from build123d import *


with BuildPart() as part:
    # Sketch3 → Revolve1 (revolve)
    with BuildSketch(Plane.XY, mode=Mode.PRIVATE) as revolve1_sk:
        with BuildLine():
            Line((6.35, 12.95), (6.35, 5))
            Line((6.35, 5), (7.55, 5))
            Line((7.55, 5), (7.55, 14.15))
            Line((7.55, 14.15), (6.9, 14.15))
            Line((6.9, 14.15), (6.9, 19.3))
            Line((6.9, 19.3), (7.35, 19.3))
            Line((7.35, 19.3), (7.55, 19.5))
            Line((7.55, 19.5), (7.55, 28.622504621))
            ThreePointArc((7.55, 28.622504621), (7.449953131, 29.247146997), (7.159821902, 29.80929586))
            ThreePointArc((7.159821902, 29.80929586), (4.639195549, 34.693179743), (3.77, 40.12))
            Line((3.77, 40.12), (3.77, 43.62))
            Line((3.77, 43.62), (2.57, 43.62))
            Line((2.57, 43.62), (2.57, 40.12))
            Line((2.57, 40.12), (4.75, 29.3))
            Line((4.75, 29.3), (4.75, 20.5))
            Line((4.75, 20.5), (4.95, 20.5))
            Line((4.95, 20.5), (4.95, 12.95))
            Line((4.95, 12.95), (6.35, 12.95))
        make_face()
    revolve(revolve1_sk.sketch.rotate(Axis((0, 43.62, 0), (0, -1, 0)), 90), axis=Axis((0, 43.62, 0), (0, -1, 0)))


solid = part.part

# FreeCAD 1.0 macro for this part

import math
import FreeCAD as App
import Part
import Sketcher
from FreeCAD import Vector
Q = App.Units.Quantity

doc = App.newDocument("Part")
body = doc.addObject("PartDesign::Body", "Body")

# Sketch on XY plane
sketch1 = body.newObject("Sketcher::SketchObject", "Sketch")
sketch1.AttachmentSupport = (doc.getObject("XY_Plane"), [""])
sketch1.MapMode = "FlatFace"
sketch1.addGeometry([
    Part.LineSegment(Vector(6.35, 12.95, 0), Vector(6.35, 5, 0)),  # 0
    Part.LineSegment(Vector(6.35, 5, 0), Vector(7.55, 5, 0)),  # 1
    Part.LineSegment(Vector(7.55, 5, 0), Vector(7.55, 14.15, 0)),  # 2
    Part.LineSegment(Vector(7.55, 14.15, 0), Vector(6.9, 14.15, 0)),  # 3
    Part.LineSegment(Vector(6.9, 14.15, 0), Vector(6.9, 19.3, 0)),  # 4
    Part.LineSegment(Vector(6.9, 19.3, 0), Vector(7.35, 19.3, 0)),  # 5
    Part.LineSegment(Vector(7.35, 19.3, 0), Vector(7.55, 19.5, 0)),  # 6
    Part.LineSegment(Vector(7.55, 19.5, 0), Vector(7.55, 28.62, 0)),  # 7
    Part.ArcOfCircle(Part.Circle(Vector(5.55, 28.62, 0), Vector(0, 0, 1), 2), math.radians(0), math.radians(36)),  # 8
    Part.ArcOfCircle(Part.Circle(Vector(21.15, 40.12, 0), Vector(0, 0, 1), 17.38), math.radians(-180), math.radians(-144)),  # 9
    Part.LineSegment(Vector(3.77, 40.12, 0), Vector(3.77, 43.62, 0)),  # 10
    Part.LineSegment(Vector(3.77, 43.62, 0), Vector(2.57, 43.62, 0)),  # 11
    Part.LineSegment(Vector(2.57, 43.62, 0), Vector(2.57, 40.12, 0)),  # 12
    Part.LineSegment(Vector(2.57, 40.12, 0), Vector(4.75, 29.3, 0)),  # 13
    Part.LineSegment(Vector(4.75, 29.3, 0), Vector(4.75, 20.5, 0)),  # 14
    Part.LineSegment(Vector(4.75, 20.5, 0), Vector(4.95, 20.5, 0)),  # 15
    Part.LineSegment(Vector(4.95, 20.5, 0), Vector(4.95, 12.95, 0)),  # 16
    Part.LineSegment(Vector(4.95, 12.95, 0), Vector(6.35, 12.95, 0)),  # 17
], False)
sketch1.addConstraint([
    Sketcher.Constraint("Coincident", 0, 2, 1, 1),
    Sketcher.Constraint("Coincident", 1, 2, 2, 1),
    Sketcher.Constraint("Coincident", 2, 2, 3, 1),
    Sketcher.Constraint("Coincident", 3, 2, 4, 1),
    Sketcher.Constraint("Coincident", 4, 2, 5, 1),
    Sketcher.Constraint("Coincident", 5, 2, 6, 1),
    Sketcher.Constraint("Coincident", 6, 2, 7, 1),
    Sketcher.Constraint("Tangent", 7, 2, 8, 1),
    Sketcher.Constraint("Tangent", 8, 2, 9, 2),
    Sketcher.Constraint("Tangent", 9, 1, 10, 1),
    Sketcher.Constraint("Coincident", 10, 2, 11, 1),
    Sketcher.Constraint("Coincident", 11, 2, 12, 1),
    Sketcher.Constraint("Coincident", 12, 2, 13, 1),
    Sketcher.Constraint("Coincident", 13, 2, 14, 1),
    Sketcher.Constraint("Coincident", 14, 2, 15, 1),
    Sketcher.Constraint("Coincident", 15, 2, 16, 1),
    Sketcher.Constraint("Coincident", 16, 2, 17, 1),
    Sketcher.Constraint("Coincident", 17, 2, 0, 1),
    Sketcher.Constraint("Vertical", 0),
    Sketcher.Constraint("Horizontal", 1),
    Sketcher.Constraint("Vertical", 2),
    Sketcher.Constraint("Horizontal", 3),
    Sketcher.Constraint("Vertical", 4),
    Sketcher.Constraint("Horizontal", 5),
    Sketcher.Constraint("Vertical", 7),
    Sketcher.Constraint("Vertical", 10),
    Sketcher.Constraint("Horizontal", 11),
    Sketcher.Constraint("Vertical", 12),
    Sketcher.Constraint("Vertical", 14),
    Sketcher.Constraint("Horizontal", 15),
    Sketcher.Constraint("Vertical", 16),
    Sketcher.Constraint("Horizontal", 17),
    Sketcher.Constraint("Horizontal", 9, 1, 12, 2),
    Sketcher.Constraint("Vertical", 2, 2, 6, 2),
    Sketcher.Constraint("Equal", 1, 11),
    Sketcher.Constraint("Radius", 8, 2.0),
    Sketcher.Constraint("Angle", 6, Q("45 deg")),
    Sketcher.Constraint("DistanceX", 1, 1, 1, 2, 1.2),
    Sketcher.Constraint("DistanceX", 15, 1, 15, 2, 0.2),
    Sketcher.Constraint("DistanceX", 17, 1, 17, 2, 1.4),
    Sketcher.Constraint("DistanceY", 10, 1, 10, 2, 3.5),
    Sketcher.Constraint("DistanceY", 14, 2, 14, 1, 8.8),
    Sketcher.Constraint("DistanceY", -1, 1, 0, 2, 5.0),
    Sketcher.Constraint("DistanceY", 4, 2, 13, 2, 10.0),
    Sketcher.Constraint("DistanceY", 6, 2, 14, 2, 1.0),
    Sketcher.Constraint("DistanceX", 3, 2, 3, 1, 0.65),
    Sketcher.Constraint("DistanceY", 0, 2, 0, 1, 7.95),
    Sketcher.Constraint("DistanceY", 2, 1, 2, 2, 9.15),
    Sketcher.Constraint("DistanceY", 4, 1, 4, 2, 5.15),
    Sketcher.Constraint("DistanceX", -1, 1, 3, 2, 6.9),
    Sketcher.Constraint("DistanceY", -1, 1, 9, 3, 40.12),
    Sketcher.Constraint("DistanceX", -1, 1, 9, 1, 3.77),
    Sketcher.Constraint("Radius", 9, 17.375767),
])
revolution = body.newObject("PartDesign::Revolution", "Revolution")
revolution.Profile = sketch1
revolution.ReferenceAxis = (sketch1, ["V_Axis"])
revolution.Angle = 360

doc.recompute()
